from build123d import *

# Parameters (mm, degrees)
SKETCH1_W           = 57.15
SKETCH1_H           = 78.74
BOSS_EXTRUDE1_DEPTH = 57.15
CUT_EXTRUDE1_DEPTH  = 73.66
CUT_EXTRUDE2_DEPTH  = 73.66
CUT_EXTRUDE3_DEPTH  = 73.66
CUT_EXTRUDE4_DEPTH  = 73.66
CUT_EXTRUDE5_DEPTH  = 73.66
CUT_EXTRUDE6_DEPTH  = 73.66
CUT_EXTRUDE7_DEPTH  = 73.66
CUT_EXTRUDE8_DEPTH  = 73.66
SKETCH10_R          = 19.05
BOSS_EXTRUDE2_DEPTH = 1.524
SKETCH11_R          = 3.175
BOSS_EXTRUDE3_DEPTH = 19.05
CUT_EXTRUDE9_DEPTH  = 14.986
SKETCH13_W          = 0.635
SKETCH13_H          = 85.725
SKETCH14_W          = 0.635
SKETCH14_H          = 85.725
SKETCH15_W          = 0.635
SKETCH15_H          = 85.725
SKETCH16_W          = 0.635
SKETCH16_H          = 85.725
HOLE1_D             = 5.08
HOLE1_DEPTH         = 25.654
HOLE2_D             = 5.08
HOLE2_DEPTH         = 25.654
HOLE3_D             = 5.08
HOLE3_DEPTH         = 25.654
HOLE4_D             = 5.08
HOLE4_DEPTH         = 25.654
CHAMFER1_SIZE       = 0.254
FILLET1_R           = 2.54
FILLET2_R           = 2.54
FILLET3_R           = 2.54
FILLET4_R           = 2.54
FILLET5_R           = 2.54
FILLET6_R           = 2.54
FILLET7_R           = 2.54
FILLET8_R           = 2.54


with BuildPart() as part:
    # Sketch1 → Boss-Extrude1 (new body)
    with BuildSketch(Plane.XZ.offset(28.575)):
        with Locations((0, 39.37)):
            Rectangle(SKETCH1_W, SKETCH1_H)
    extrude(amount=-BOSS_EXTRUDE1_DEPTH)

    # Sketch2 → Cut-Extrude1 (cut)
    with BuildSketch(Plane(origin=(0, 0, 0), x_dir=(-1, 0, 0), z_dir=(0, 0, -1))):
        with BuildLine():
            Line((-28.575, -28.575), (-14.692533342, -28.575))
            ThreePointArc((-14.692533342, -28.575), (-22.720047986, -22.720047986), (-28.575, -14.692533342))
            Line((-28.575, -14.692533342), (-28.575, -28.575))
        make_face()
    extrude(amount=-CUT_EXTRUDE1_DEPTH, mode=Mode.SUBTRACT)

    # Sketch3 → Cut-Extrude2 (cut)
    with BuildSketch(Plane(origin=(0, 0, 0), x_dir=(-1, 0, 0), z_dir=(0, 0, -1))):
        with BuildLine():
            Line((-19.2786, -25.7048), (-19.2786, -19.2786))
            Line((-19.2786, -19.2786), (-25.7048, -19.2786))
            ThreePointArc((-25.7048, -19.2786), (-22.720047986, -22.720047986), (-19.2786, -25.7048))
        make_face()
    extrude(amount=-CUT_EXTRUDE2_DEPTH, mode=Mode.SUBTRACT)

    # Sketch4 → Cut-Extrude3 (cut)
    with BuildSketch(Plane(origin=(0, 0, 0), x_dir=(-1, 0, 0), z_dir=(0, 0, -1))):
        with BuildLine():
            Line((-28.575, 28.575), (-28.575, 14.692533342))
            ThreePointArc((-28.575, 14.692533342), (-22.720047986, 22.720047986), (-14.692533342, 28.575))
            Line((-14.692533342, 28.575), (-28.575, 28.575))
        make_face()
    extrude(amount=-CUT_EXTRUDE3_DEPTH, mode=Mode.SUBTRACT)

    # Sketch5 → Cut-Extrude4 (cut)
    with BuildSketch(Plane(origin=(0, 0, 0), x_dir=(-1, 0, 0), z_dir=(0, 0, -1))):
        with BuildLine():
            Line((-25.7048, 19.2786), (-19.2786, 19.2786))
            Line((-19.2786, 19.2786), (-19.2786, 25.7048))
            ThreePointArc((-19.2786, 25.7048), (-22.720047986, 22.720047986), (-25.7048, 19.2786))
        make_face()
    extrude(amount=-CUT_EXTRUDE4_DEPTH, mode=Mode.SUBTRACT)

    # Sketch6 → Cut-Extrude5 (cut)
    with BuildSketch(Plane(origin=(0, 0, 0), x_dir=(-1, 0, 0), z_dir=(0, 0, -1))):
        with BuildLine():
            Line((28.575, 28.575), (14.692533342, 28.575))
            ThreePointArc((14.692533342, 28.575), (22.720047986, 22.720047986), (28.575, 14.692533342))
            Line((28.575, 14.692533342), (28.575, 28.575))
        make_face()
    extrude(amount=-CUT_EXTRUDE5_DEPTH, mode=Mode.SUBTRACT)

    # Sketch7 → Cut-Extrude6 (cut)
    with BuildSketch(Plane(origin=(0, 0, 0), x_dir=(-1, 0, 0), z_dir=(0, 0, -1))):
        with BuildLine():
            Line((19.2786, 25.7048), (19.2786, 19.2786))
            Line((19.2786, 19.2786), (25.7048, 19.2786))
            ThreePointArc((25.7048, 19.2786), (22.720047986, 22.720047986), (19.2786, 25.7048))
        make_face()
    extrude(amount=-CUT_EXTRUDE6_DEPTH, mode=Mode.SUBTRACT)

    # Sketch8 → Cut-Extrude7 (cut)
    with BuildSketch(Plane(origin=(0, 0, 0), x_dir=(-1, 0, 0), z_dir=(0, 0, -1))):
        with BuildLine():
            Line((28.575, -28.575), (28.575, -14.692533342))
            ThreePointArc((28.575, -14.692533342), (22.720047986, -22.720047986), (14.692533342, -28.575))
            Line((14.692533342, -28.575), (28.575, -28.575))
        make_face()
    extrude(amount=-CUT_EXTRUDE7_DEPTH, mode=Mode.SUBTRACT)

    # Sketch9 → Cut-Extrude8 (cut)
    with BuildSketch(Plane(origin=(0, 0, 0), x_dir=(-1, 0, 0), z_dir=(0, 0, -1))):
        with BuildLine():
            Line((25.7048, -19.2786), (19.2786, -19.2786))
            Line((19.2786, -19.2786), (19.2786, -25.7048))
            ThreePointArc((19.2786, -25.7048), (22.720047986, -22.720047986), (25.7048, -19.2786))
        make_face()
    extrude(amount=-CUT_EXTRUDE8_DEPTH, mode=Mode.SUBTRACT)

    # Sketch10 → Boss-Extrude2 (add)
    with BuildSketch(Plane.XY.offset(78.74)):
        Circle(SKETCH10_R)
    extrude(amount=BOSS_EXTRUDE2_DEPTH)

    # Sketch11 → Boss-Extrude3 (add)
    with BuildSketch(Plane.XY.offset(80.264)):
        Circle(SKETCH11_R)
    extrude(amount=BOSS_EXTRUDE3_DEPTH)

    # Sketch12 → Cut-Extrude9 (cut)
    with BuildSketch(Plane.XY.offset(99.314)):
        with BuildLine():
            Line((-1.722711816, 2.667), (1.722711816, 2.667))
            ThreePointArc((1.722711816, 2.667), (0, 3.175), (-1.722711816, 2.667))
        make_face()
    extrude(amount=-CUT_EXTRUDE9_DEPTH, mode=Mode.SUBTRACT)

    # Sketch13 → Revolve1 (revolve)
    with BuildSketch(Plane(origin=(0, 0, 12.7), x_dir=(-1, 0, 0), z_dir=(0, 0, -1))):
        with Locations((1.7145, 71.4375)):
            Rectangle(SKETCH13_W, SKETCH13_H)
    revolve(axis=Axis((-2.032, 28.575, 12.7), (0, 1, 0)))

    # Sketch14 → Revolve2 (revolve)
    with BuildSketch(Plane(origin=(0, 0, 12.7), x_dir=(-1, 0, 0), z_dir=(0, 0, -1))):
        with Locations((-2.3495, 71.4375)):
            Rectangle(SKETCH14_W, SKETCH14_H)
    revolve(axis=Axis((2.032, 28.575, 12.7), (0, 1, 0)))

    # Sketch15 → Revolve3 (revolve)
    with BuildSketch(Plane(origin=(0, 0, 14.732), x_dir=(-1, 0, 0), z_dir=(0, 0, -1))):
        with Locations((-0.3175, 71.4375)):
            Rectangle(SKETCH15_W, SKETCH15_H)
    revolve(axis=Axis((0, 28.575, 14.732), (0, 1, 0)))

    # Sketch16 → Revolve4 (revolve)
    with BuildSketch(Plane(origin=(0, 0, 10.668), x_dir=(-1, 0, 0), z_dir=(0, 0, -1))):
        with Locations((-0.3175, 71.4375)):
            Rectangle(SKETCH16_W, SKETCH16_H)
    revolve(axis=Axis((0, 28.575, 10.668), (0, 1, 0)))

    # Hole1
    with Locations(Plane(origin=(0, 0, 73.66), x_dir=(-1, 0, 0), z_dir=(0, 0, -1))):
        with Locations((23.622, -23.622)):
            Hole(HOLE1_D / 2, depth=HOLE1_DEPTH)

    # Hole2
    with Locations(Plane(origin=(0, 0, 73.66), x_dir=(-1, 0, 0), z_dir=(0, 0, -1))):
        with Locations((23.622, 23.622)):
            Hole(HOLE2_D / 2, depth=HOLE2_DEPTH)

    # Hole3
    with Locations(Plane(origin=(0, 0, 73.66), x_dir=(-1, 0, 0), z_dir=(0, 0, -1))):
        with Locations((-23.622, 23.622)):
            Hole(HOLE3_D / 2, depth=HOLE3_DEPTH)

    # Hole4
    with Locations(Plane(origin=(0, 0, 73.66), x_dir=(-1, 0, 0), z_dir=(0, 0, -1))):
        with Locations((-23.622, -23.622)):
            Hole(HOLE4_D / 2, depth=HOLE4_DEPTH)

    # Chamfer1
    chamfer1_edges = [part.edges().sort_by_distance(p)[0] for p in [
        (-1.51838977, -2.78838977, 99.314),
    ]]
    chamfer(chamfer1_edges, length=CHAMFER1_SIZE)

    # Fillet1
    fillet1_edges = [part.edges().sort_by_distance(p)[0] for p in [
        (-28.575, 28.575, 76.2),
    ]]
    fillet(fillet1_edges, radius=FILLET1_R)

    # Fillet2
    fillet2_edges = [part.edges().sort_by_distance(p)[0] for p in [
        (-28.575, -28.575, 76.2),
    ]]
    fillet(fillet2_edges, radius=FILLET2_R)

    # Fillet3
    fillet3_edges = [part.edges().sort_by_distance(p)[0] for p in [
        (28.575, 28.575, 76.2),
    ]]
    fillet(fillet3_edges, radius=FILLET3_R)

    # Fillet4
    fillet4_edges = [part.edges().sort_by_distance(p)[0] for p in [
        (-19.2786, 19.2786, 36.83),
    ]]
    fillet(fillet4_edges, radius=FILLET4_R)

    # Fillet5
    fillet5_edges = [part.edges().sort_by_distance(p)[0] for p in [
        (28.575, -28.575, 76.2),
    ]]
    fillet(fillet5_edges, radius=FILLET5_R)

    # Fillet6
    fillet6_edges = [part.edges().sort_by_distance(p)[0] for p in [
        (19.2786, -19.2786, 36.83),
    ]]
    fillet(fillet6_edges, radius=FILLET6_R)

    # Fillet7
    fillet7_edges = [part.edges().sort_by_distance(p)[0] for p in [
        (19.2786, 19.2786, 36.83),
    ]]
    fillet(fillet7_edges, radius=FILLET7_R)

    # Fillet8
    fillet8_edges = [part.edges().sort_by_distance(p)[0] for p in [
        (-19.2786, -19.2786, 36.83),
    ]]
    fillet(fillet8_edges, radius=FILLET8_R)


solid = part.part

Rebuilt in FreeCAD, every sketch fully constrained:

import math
import FreeCAD as App
import Part
import Sketcher
from FreeCAD import Vector
Q = App.Units.Quantity


def edges_at(feature, points):
    """Names of the edges that pass closest to the given points."""
    edges = feature.Shape.Edges
    near = lambda p: min(range(len(edges)), key=lambda i: edges[i].distToShape(Part.Vertex(*p))[0])
    return sorted({f"Edge{near(p) + 1}" for p in points})

doc = App.newDocument("Part")
body = doc.addObject("PartDesign::Body", "Body")

# Sketch on XZ plane
sketch1 = body.newObject("Sketcher::SketchObject", "Sketch")
sketch1.AttachmentSupport = (doc.getObject("XZ_Plane"), [""])
sketch1.MapMode = "FlatFace"
sketch1.AttachmentOffset = App.Placement(Vector(0, 0, 1.125 * 25.4), App.Rotation())
sketch1.addGeometry(Part.LineSegment(Vector(-29, 79, 0), Vector(-29, 0, 0)), False)
sketch1.addGeometry(Part.LineSegment(Vector(-29, 0, 0), Vector(29, 0, 0)), False)
sketch1.addGeometry(Part.LineSegment(Vector(29, 0, 0), Vector(29, 79, 0)), False)
sketch1.addGeometry(Part.LineSegment(Vector(29, 79, 0), Vector(-29, 79, 0)), False)
sketch1.addConstraint(Sketcher.Constraint("Coincident", 0, 2, 1, 1))
sketch1.addConstraint(Sketcher.Constraint("Coincident", 1, 2, 2, 1))
sketch1.addConstraint(Sketcher.Constraint("Coincident", 2, 2, 3, 1))
sketch1.addConstraint(Sketcher.Constraint("Coincident", 3, 2, 0, 1))
sketch1.addConstraint(Sketcher.Constraint("Vertical", 0))
sketch1.addConstraint(Sketcher.Constraint("Horizontal", 1))
sketch1.addConstraint(Sketcher.Constraint("Vertical", 2))
sketch1.addConstraint(Sketcher.Constraint("Horizontal", 3))
sketch1.addConstraint(Sketcher.Constraint("Symmetric", 0, 2, 1, 2, -1, 1))
sketch1.addConstraint(Sketcher.Constraint("DistanceY", 0, 2, 0, 1, Q("3.1 in")))
sketch1.addConstraint(Sketcher.Constraint("DistanceX", 1, 1, 1, 2, Q("2.25 in")))
pad1 = body.newObject("PartDesign::Pad", "Pad")
pad1.Profile = sketch1
pad1.Length = Q("2.25 in")
pad1.Reversed = True

# Sketch on XY plane
sketch2 = body.newObject("Sketcher::SketchObject", "Sketch001")
sketch2.AttachmentSupport = (doc.getObject("XY_Plane"), [""])
sketch2.MapMode = "FlatFace"
sketch2.addGeometry(Part.LineSegment(Vector(29, -29, 0), Vector(15, -29, 0)), False)
sketch2.addGeometry(Part.ArcOfCircle(Part.Circle(Vector(0, 0, 0), Vector(0, 0, 1), 32), math.radians(-63), math.radians(-27)), False)
sketch2.addGeometry(Part.LineSegment(Vector(29, -15, 0), Vector(29, -29, 0)), False)
sketch2.addConstraint(Sketcher.Constraint("Coincident", 0, 2, 1, 1))
sketch2.addConstraint(Sketcher.Constraint("Coincident", 1, 2, 2, 1))
sketch2.addConstraint(Sketcher.Constraint("Coincident", 2, 2, 0, 1))
sketch2.addConstraint(Sketcher.Constraint("Horizontal", 0))
sketch2.addConstraint(Sketcher.Constraint("Vertical", 2))
sketch2.addConstraint(Sketcher.Constraint("Coincident", 1, 3, -1, 1))
sketch2.addConstraint(Sketcher.Constraint("Equal", 0, 2))
sketch2.addConstraint(Sketcher.Constraint("Radius", 1, Q("1.265 in")))
sketch2.addConstraint(Sketcher.Constraint("DistanceY", 0, 2, -1, 1, Q("1.125 in")))
pocket1 = body.newObject("PartDesign::Pocket", "Pocket")
pocket1.Profile = sketch2
pocket1.Length = Q("2.9 in")
pocket1.Reversed = True

# Sketch on XY plane
sketch3 = body.newObject("Sketcher::SketchObject", "Sketch002")
sketch3.AttachmentSupport = (doc.getObject("XY_Plane"), [""])
sketch3.MapMode = "FlatFace"
sketch3.addGeometry(Part.LineSegment(Vector(19, -26, 0), Vector(19, -19, 0)), False)
sketch3.addGeometry(Part.LineSegment(Vector(19, -19, 0), Vector(26, -19, 0)), False)
sketch3.addGeometry(Part.ArcOfCircle(Part.Circle(Vector(0, 0, 0), Vector(0, 0, 1), 32), math.radians(-53.13), math.radians(-36.87)), False)
sketch3.addConstraint(Sketcher.Constraint("Coincident", 0, 2, 1, 1))
sketch3.addConstraint(Sketcher.Constraint("Coincident", 1, 2, 2, 2))
sketch3.addConstraint(Sketcher.Constraint("Coincident", 2, 1, 0, 1))
sketch3.addConstraint(Sketcher.Constraint("Vertical", 0))
sketch3.addConstraint(Sketcher.Constraint("Horizontal", 1))
sketch3.addConstraint(Sketcher.Constraint("Coincident", 2, 3, -1, 1))
sketch3.addConstraint(Sketcher.Constraint("Equal", 1, 0))
sketch3.addConstraint(Sketcher.Constraint("Radius", 2, Q("1.265 in")))
sketch3.addConstraint(Sketcher.Constraint("DistanceX", 1, 1, 1, 2, Q("0.253 in")))
pocket2 = body.newObject("PartDesign::Pocket", "Pocket001")
pocket2.Profile = sketch3
pocket2.Length = Q("2.9 in")
pocket2.Reversed = True

# Sketch on XY plane
sketch4 = body.newObject("Sketcher::SketchObject", "Sketch003")
sketch4.AttachmentSupport = (doc.getObject("XY_Plane"), [""])
sketch4.MapMode = "FlatFace"
sketch4.addGeometry(Part.LineSegment(Vector(29, 29, 0), Vector(29, 15, 0)), False)
sketch4.addGeometry(Part.ArcOfCircle(Part.Circle(Vector(0, 0, 0), Vector(0, 0, 1), 32), math.radians(27), math.radians(63)), False)
sketch4.addGeometry(Part.LineSegment(Vector(15, 29, 0), Vector(29, 29, 0)), False)
sketch4.addConstraint(Sketcher.Constraint("Coincident", 0, 2, 1, 1))
sketch4.addConstraint(Sketcher.Constraint("Coincident", 1, 2, 2, 1))
sketch4.addConstraint(Sketcher.Constraint("Coincident", 2, 2, 0, 1))
sketch4.addConstraint(Sketcher.Constraint("Vertical", 0))
sketch4.addConstraint(Sketcher.Constraint("Horizontal", 2))
sketch4.addConstraint(Sketcher.Constraint("Coincident", 1, 3, -1, 1))
sketch4.addConstraint(Sketcher.Constraint("Equal", 2, 0))
sketch4.addConstraint(Sketcher.Constraint("Radius", 1, Q("1.265 in")))
sketch4.addConstraint(Sketcher.Constraint("DistanceX", -1, 1, 0, 2, Q("1.125 in")))
pocket3 = body.newObject("PartDesign::Pocket", "Pocket002")
pocket3.Profile = sketch4
pocket3.Length = Q("2.9 in")
pocket3.Reversed = True

# Sketch on XY plane
sketch5 = body.newObject("Sketcher::SketchObject", "Sketch004")
sketch5.AttachmentSupport = (doc.getObject("XY_Plane"), [""])
sketch5.MapMode = "FlatFace"
sketch5.addGeometry(Part.LineSegment(Vector(26, 19, 0), Vector(19, 19, 0)), False)
sketch5.addGeometry(Part.LineSegment(Vector(19, 19, 0), Vector(19, 26, 0)), False)
sketch5.addGeometry(Part.ArcOfCircle(Part.Circle(Vector(0, 0, 0), Vector(0, 0, 1), 32), math.radians(36.87), math.radians(53.13)), False)
sketch5.addConstraint(Sketcher.Constraint("Coincident", 0, 2, 1, 1))
sketch5.addConstraint(Sketcher.Constraint("Coincident", 1, 2, 2, 2))
sketch5.addConstraint(Sketcher.Constraint("Coincident", 2, 1, 0, 1))
sketch5.addConstraint(Sketcher.Constraint("Horizontal", 0))
sketch5.addConstraint(Sketcher.Constraint("Vertical", 1))
sketch5.addConstraint(Sketcher.Constraint("Coincident", 2, 3, -1, 1))
sketch5.addConstraint(Sketcher.Constraint("Equal", 0, 1))
sketch5.addConstraint(Sketcher.Constraint("Radius", 2, Q("1.265 in")))
sketch5.addConstraint(Sketcher.Constraint("DistanceX", 0, 2, 0, 1, Q("0.253 in")))
pocket4 = body.newObject("PartDesign::Pocket", "Pocket003")
pocket4.Profile = sketch5
pocket4.Length = Q("2.9 in")
pocket4.Reversed = True

# Sketch on XY plane
sketch6 = body.newObject("Sketcher::SketchObject", "Sketch005")
sketch6.AttachmentSupport = (doc.getObject("XY_Plane"), [""])
sketch6.MapMode = "FlatFace"
sketch6.addGeometry(Part.LineSegment(Vector(-29, 29, 0), Vector(-15, 29, 0)), False)
sketch6.addGeometry(Part.ArcOfCircle(Part.Circle(Vector(0, 0, 0), Vector(0, 0, 1), 32), math.radians(117), math.radians(153)), False)
sketch6.addGeometry(Part.LineSegment(Vector(-29, 15, 0), Vector(-29, 29, 0)), False)
sketch6.addConstraint(Sketcher.Constraint("Coincident", 0, 2, 1, 1))
sketch6.addConstraint(Sketcher.Constraint("Coincident", 1, 2, 2, 1))
sketch6.addConstraint(Sketcher.Constraint("Coincident", 2, 2, 0, 1))
sketch6.addConstraint(Sketcher.Constraint("Horizontal", 0))
sketch6.addConstraint(Sketcher.Constraint("Vertical", 2))
sketch6.addConstraint(Sketcher.Constraint("Coincident", 1, 3, -1, 1))
sketch6.addConstraint(Sketcher.Constraint("Equal", 0, 2))
sketch6.addConstraint(Sketcher.Constraint("Radius", 1, Q("1.265 in")))
sketch6.addConstraint(Sketcher.Constraint("DistanceY", -1, 1, 0, 2, Q("1.125 in")))
pocket5 = body.newObject("PartDesign::Pocket", "Pocket004")
pocket5.Profile = sketch6
pocket5.Length = Q("2.9 in")
pocket5.Reversed = True

# Sketch on XY plane
sketch7 = body.newObject("Sketcher::SketchObject", "Sketch006")
sketch7.AttachmentSupport = (doc.getObject("XY_Plane"), [""])
sketch7.MapMode = "FlatFace"
sketch7.addGeometry(Part.LineSegment(Vector(-19, 26, 0), Vector(-19, 19, 0)), False)
sketch7.addGeometry(Part.LineSegment(Vector(-19, 19, 0), Vector(-26, 19, 0)), False)
sketch7.addGeometry(Part.ArcOfCircle(Part.Circle(Vector(0, 0, 0), Vector(0, 0, 1), 32), math.radians(126.87), math.radians(143.13)), False)
sketch7.addConstraint(Sketcher.Constraint("Coincident", 0, 2, 1, 1))
sketch7.addConstraint(Sketcher.Constraint("Coincident", 1, 2, 2, 2))
sketch7.addConstraint(Sketcher.Constraint("Coincident", 2, 1, 0, 1))
sketch7.addConstraint(Sketcher.Constraint("Vertical", 0))
sketch7.addConstraint(Sketcher.Constraint("Horizontal", 1))
sketch7.addConstraint(Sketcher.Constraint("Coincident", 2, 3, -1, 1))
sketch7.addConstraint(Sketcher.Constraint("Equal", 1, 0))
sketch7.addConstraint(Sketcher.Constraint("Radius", 2, Q("1.265 in")))
sketch7.addConstraint(Sketcher.Constraint("DistanceX", 1, 2, 1, 1, Q("0.253 in")))
pocket6 = body.newObject("PartDesign::Pocket", "Pocket005")
pocket6.Profile = sketch7
pocket6.Length = Q("2.9 in")
pocket6.Reversed = True

# Sketch on XY plane
sketch8 = body.newObject("Sketcher::SketchObject", "Sketch007")
sketch8.AttachmentSupport = (doc.getObject("XY_Plane"), [""])
sketch8.MapMode = "FlatFace"
sketch8.addGeometry(Part.LineSegment(Vector(-29, -29, 0), Vector(-29, -15, 0)), False)
sketch8.addGeometry(Part.ArcOfCircle(Part.Circle(Vector(0, 0, 0), Vector(0, 0, 1), 32), math.radians(-153), math.radians(-117)), False)
sketch8.addGeometry(Part.LineSegment(Vector(-15, -29, 0), Vector(-29, -29, 0)), False)
sketch8.addConstraint(Sketcher.Constraint("Coincident", 0, 2, 1, 1))
sketch8.addConstraint(Sketcher.Constraint("Coincident", 1, 2, 2, 1))
sketch8.addConstraint(Sketcher.Constraint("Coincident", 2, 2, 0, 1))
sketch8.addConstraint(Sketcher.Constraint("Vertical", 0))
sketch8.addConstraint(Sketcher.Constraint("Horizontal", 2))
sketch8.addConstraint(Sketcher.Constraint("Coincident", 1, 3, -1, 1))
sketch8.addConstraint(Sketcher.Constraint("Equal", 2, 0))
sketch8.addConstraint(Sketcher.Constraint("Radius", 1, Q("1.265 in")))
sketch8.addConstraint(Sketcher.Constraint("DistanceX", 0, 2, -1, 1, Q("1.125 in")))
pocket7 = body.newObject("PartDesign::Pocket", "Pocket006")
pocket7.Profile = sketch8
pocket7.Length = Q("2.9 in")
pocket7.Reversed = True

# Sketch on XY plane
sketch9 = body.newObject("Sketcher::SketchObject", "Sketch008")
sketch9.AttachmentSupport = (doc.getObject("XY_Plane"), [""])
sketch9.MapMode = "FlatFace"
sketch9.addGeometry(Part.LineSegment(Vector(-26, -19, 0), Vector(-19, -19, 0)), False)
sketch9.addGeometry(Part.LineSegment(Vector(-19, -19, 0), Vector(-19, -26, 0)), False)
sketch9.addGeometry(Part.ArcOfCircle(Part.Circle(Vector(0, 0, 0), Vector(0, 0, 1), 32), math.radians(-143.13), math.radians(-126.87)), False)
sketch9.addConstraint(Sketcher.Constraint("Coincident", 0, 2, 1, 1))
sketch9.addConstraint(Sketcher.Constraint("Coincident", 1, 2, 2, 2))
sketch9.addConstraint(Sketcher.Constraint("Coincident", 2, 1, 0, 1))
sketch9.addConstraint(Sketcher.Constraint("Horizontal", 0))
sketch9.addConstraint(Sketcher.Constraint("Vertical", 1))
sketch9.addConstraint(Sketcher.Constraint("Coincident", 2, 3, -1, 1))
sketch9.addConstraint(Sketcher.Constraint("Equal", 0, 1))
sketch9.addConstraint(Sketcher.Constraint("Radius", 2, Q("1.265 in")))
sketch9.addConstraint(Sketcher.Constraint("DistanceX", 0, 1, 0, 2, Q("0.253 in")))
pocket8 = body.newObject("PartDesign::Pocket", "Pocket007")
pocket8.Profile = sketch9
pocket8.Length = Q("2.9 in")
pocket8.Reversed = True

# Sketch on XY plane
sketch10 = body.newObject("Sketcher::SketchObject", "Sketch009")
sketch10.AttachmentSupport = (doc.getObject("XY_Plane"), [""])
sketch10.MapMode = "FlatFace"
sketch10.AttachmentOffset = App.Placement(Vector(0, 0, 3.1 * 25.4), App.Rotation())
sketch10.addGeometry(Part.Circle(Vector(0, 0, 0), Vector(0, 0, 1), 19), False)
sketch10.addConstraint(Sketcher.Constraint("Coincident", 0, 3, -1, 1))
sketch10.addConstraint(Sketcher.Constraint("Diameter", 0, Q("1.5 in")))
pad2 = body.newObject("PartDesign::Pad", "Pad001")
pad2.Profile = sketch10
pad2.Length = Q("0.06 in")

# Sketch on XY plane
sketch11 = body.newObject("Sketcher::SketchObject", "Sketch010")
sketch11.AttachmentSupport = (doc.getObject("XY_Plane"), [""])
sketch11.MapMode = "FlatFace"
sketch11.AttachmentOffset = App.Placement(Vector(0, 0, 3.16 * 25.4), App.Rotation())
sketch11.addGeometry(Part.Circle(Vector(0, 0, 0), Vector(0, 0, 1), 3.2), False)
sketch11.addConstraint(Sketcher.Constraint("Coincident", 0, 3, -1, 1))
sketch11.addConstraint(Sketcher.Constraint("Diameter", 0, Q("0.25 in")))
pad3 = body.newObject("PartDesign::Pad", "Pad002")
pad3.Profile = sketch11
pad3.Length = Q("0.75 in")

# Sketch on XY plane
sketch12 = body.newObject("Sketcher::SketchObject", "Sketch011")
sketch12.AttachmentSupport = (doc.getObject("XY_Plane"), [""])
sketch12.MapMode = "FlatFace"
sketch12.AttachmentOffset = App.Placement(Vector(0, 0, 3.91 * 25.4), App.Rotation())
sketch12.addGeometry(Part.LineSegment(Vector(-1.7, 2.7, 0), Vector(1.7, 2.7, 0)), False)
sketch12.addGeometry(Part.ArcOfCircle(Part.Circle(Vector(0, 0, 0), Vector(0, 0, 1), 3.2), math.radians(57), math.radians(123)), False)
sketch12.addConstraint(Sketcher.Constraint("Coincident", 0, 1, 1, 2))
sketch12.addConstraint(Sketcher.Constraint("Coincident", 1, 1, 0, 2))
sketch12.addConstraint(Sketcher.Constraint("Horizontal", 0))
sketch12.addConstraint(Sketcher.Constraint("Coincident", 1, 3, -1, 1))
sketch12.addConstraint(Sketcher.Constraint("Radius", 1, Q("0.125 in")))
sketch12.addConstraint(Sketcher.Constraint("DistanceY", -1, 1, 0, 1, Q("0.105 in")))
pocket9 = body.newObject("PartDesign::Pocket", "Pocket008")
pocket9.Profile = sketch12
pocket9.Length = Q("0.59 in")

# Sketch on XY plane
sketch13 = body.newObject("Sketcher::SketchObject", "Sketch012")
sketch13.AttachmentSupport = (doc.getObject("XY_Plane"), [""])
sketch13.MapMode = "FlatFace"
sketch13.AttachmentOffset = App.Placement(Vector(0, 0, 0.5 * 25.4), App.Rotation())
sketch13.addGeometry(Part.LineSegment(Vector(-1.4, 114.3, 0), Vector(-1.4, 28.6, 0)), False)
sketch13.addGeometry(Part.LineSegment(Vector(-1.4, 28.6, 0), Vector(-2, 28.6, 0)), False)
sketch13.addGeometry(Part.LineSegment(Vector(-2, 28.6, 0), Vector(-2, 114.3, 0)), False)
sketch13.addGeometry(Part.LineSegment(Vector(-2, 114.3, 0), Vector(-1.4, 114.3, 0)), False)
sketch13.addGeometry(Part.LineSegment(Vector(-2, 28.6, 0), Vector(-2, 114.3, 0)), True)  # axis
sketch13.addConstraint(Sketcher.Constraint("Coincident", 0, 2, 1, 1))
sketch13.addConstraint(Sketcher.Constraint("Coincident", 1, 2, 2, 1))
sketch13.addConstraint(Sketcher.Constraint("Coincident", 2, 2, 3, 1))
sketch13.addConstraint(Sketcher.Constraint("Coincident", 3, 2, 0, 1))
sketch13.addConstraint(Sketcher.Constraint("Vertical", 0))
sketch13.addConstraint(Sketcher.Constraint("Horizontal", 1))
sketch13.addConstraint(Sketcher.Constraint("Vertical", 2))
sketch13.addConstraint(Sketcher.Constraint("Horizontal", 3))
sketch13.addConstraint(Sketcher.Constraint("Vertical", 4))
sketch13.addConstraint(Sketcher.Constraint("Coincident", 4, 1, 1, 2))
sketch13.addConstraint(Sketcher.Constraint("Horizontal", 3, 2, 4, 2))
sketch13.addConstraint(Sketcher.Constraint("DistanceY", -1, 1, 2, 2, Q("4.5 in")))
sketch13.addConstraint(Sketcher.Constraint("DistanceX", 1, 2, 1, 1, Q("0.025 in")))
sketch13.addConstraint(Sketcher.Constraint("DistanceY", 0, 2, 0, 1, Q("3.375 in")))
sketch13.addConstraint(Sketcher.Constraint("DistanceX", 1, 2, -1, 1, Q("0.08 in")))
revolution = body.newObject("PartDesign::Revolution", "Revolution")
revolution.Profile = sketch13
revolution.ReferenceAxis = (sketch13, ["Axis0"])
revolution.Angle = 360

# Sketch on XY plane
sketch14 = body.newObject("Sketcher::SketchObject", "Sketch013")
sketch14.AttachmentSupport = (doc.getObject("XY_Plane"), [""])
sketch14.MapMode = "FlatFace"
sketch14.AttachmentOffset = App.Placement(Vector(0, 0, 0.5 * 25.4), App.Rotation())
sketch14.addGeometry(Part.LineSegment(Vector(2.7, 114.3, 0), Vector(2.7, 28.6, 0)), False)
sketch14.addGeometry(Part.LineSegment(Vector(2.7, 28.6, 0), Vector(2, 28.6, 0)), False)
sketch14.addGeometry(Part.LineSegment(Vector(2, 28.6, 0), Vector(2, 114.3, 0)), False)
sketch14.addGeometry(Part.LineSegment(Vector(2, 114.3, 0), Vector(2.7, 114.3, 0)), False)
sketch14.addGeometry(Part.LineSegment(Vector(2, 28.6, 0), Vector(2, 114.3, 0)), True)  # axis
sketch14.addConstraint(Sketcher.Constraint("Coincident", 0, 2, 1, 1))
sketch14.addConstraint(Sketcher.Constraint("Coincident", 1, 2, 2, 1))
sketch14.addConstraint(Sketcher.Constraint("Coincident", 2, 2, 3, 1))
sketch14.addConstraint(Sketcher.Constraint("Coincident", 3, 2, 0, 1))
sketch14.addConstraint(Sketcher.Constraint("Vertical", 0))
sketch14.addConstraint(Sketcher.Constraint("Horizontal", 1))
sketch14.addConstraint(Sketcher.Constraint("Vertical", 2))
sketch14.addConstraint(Sketcher.Constraint("Horizontal", 3))
sketch14.addConstraint(Sketcher.Constraint("Vertical", 4))
sketch14.addConstraint(Sketcher.Constraint("Coincident", 4, 1, 1, 2))
sketch14.addConstraint(Sketcher.Constraint("Horizontal", 3, 2, 4, 2))
sketch14.addConstraint(Sketcher.Constraint("DistanceY", -1, 1, 2, 2, Q("4.5 in")))
sketch14.addConstraint(Sketcher.Constraint("DistanceX", 1, 2, 1, 1, Q("0.025 in")))
sketch14.addConstraint(Sketcher.Constraint("DistanceY", 0, 2, 0, 1, Q("3.375 in")))
sketch14.addConstraint(Sketcher.Constraint("DistanceX", -1, 1, 1, 2, Q("0.08 in")))
revolution2 = body.newObject("PartDesign::Revolution", "Revolution001")
revolution2.Profile = sketch14
revolution2.ReferenceAxis = (sketch14, ["Axis0"])
revolution2.Angle = 360

# Sketch on XY plane
sketch15 = body.newObject("Sketcher::SketchObject", "Sketch014")
sketch15.AttachmentSupport = (doc.getObject("XY_Plane"), [""])
sketch15.MapMode = "FlatFace"
sketch15.AttachmentOffset = App.Placement(Vector(0, 0, 0.58 * 25.4), App.Rotation())
sketch15.addGeometry(Part.LineSegment(Vector(0.6, 114.3, 0), Vector(0.6, 28.6, 0)), False)
sketch15.addGeometry(Part.LineSegment(Vector(0.6, 28.6, 0), Vector(0, 28.6, 0)), False)
sketch15.addGeometry(Part.LineSegment(Vector(0, 28.6, 0), Vector(0, 114.3, 0)), False)
sketch15.addGeometry(Part.LineSegment(Vector(0, 114.3, 0), Vector(0.6, 114.3, 0)), False)
sketch15.addConstraint(Sketcher.Constraint("Coincident", 0, 2, 1, 1))
sketch15.addConstraint(Sketcher.Constraint("Coincident", 1, 2, 2, 1))
sketch15.addConstraint(Sketcher.Constraint("Coincident", 2, 2, 3, 1))
sketch15.addConstraint(Sketcher.Constraint("Coincident", 3, 2, 0, 1))
sketch15.addConstraint(Sketcher.Constraint("Vertical", 0))
sketch15.addConstraint(Sketcher.Constraint("Horizontal", 1))
sketch15.addConstraint(Sketcher.Constraint("Vertical", 2))
sketch15.addConstraint(Sketcher.Constraint("Horizontal", 3))
sketch15.addConstraint(Sketcher.Constraint("PointOnObject", 1, 2, -2))
sketch15.addConstraint(Sketcher.Constraint("DistanceY", -1, 1, 2, 2, Q("4.5 in")))
sketch15.addConstraint(Sketcher.Constraint("DistanceX", 1, 2, 1, 1, Q("0.025 in")))
sketch15.addConstraint(Sketcher.Constraint("DistanceY", 0, 2, 0, 1, Q("3.375 in")))
revolution3 = body.newObject("PartDesign::Revolution", "Revolution002")
revolution3.Profile = sketch15
revolution3.ReferenceAxis = (sketch15, ["V_Axis"])
revolution3.Angle = 360

# Sketch on XY plane
sketch16 = body.newObject("Sketcher::SketchObject", "Sketch015")
sketch16.AttachmentSupport = (doc.getObject("XY_Plane"), [""])
sketch16.MapMode = "FlatFace"
sketch16.AttachmentOffset = App.Placement(Vector(0, 0, 0.42 * 25.4), App.Rotation())
sketch16.addGeometry(Part.LineSegment(Vector(0.6, 114.3, 0), Vector(0.6, 28.6, 0)), False)
sketch16.addGeometry(Part.LineSegment(Vector(0.6, 28.6, 0), Vector(0, 28.6, 0)), False)
sketch16.addGeometry(Part.LineSegment(Vector(0, 28.6, 0), Vector(0, 114.3, 0)), False)
sketch16.addGeometry(Part.LineSegment(Vector(0, 114.3, 0), Vector(0.6, 114.3, 0)), False)
sketch16.addConstraint(Sketcher.Constraint("Coincident", 0, 2, 1, 1))
sketch16.addConstraint(Sketcher.Constraint("Coincident", 1, 2, 2, 1))
sketch16.addConstraint(Sketcher.Constraint("Coincident", 2, 2, 3, 1))
sketch16.addConstraint(Sketcher.Constraint("Coincident", 3, 2, 0, 1))
sketch16.addConstraint(Sketcher.Constraint("Vertical", 0))
sketch16.addConstraint(Sketcher.Constraint("Horizontal", 1))
sketch16.addConstraint(Sketcher.Constraint("Vertical", 2))
sketch16.addConstraint(Sketcher.Constraint("Horizontal", 3))
sketch16.addConstraint(Sketcher.Constraint("PointOnObject", 1, 2, -2))
sketch16.addConstraint(Sketcher.Constraint("DistanceY", -1, 1, 2, 2, Q("4.5 in")))
sketch16.addConstraint(Sketcher.Constraint("DistanceX", 1, 2, 1, 1, Q("0.025 in")))
sketch16.addConstraint(Sketcher.Constraint("DistanceY", 0, 2, 0, 1, Q("3.375 in")))
revolution4 = body.newObject("PartDesign::Revolution", "Revolution003")
revolution4.Profile = sketch16
revolution4.ReferenceAxis = (sketch16, ["V_Axis"])
revolution4.Angle = 360

# Sketch on XY plane
sketch17 = body.newObject("Sketcher::SketchObject", "Sketch016")
sketch17.AttachmentSupport = (doc.getObject("XY_Plane"), [""])
sketch17.MapMode = "FlatFace"
sketch17.AttachmentOffset = App.Placement(Vector(0, 0, 2.9 * 25.4), App.Rotation())
sketch17.addGeometry(Part.Circle(Vector(-23.6, -23.6, 0), Vector(0, 0, 1), 2.5), False)
sketch17.addConstraint(Sketcher.Constraint("Diameter", 0, Q("0.2 in")))
sketch17.addConstraint(Sketcher.Constraint("DistanceX", 0, 3, -1, 1, Q("0.93 in")))
sketch17.addConstraint(Sketcher.Constraint("DistanceY", 0, 3, -1, 1, Q("0.93 in")))
doc.recompute()
hole = body.newObject("PartDesign::Hole", "Hole")
hole.Profile = sketch17
hole.ThreadType = "None"
hole.Diameter = Q("0.2 in")
hole.DepthType = "Dimension"
hole.Depth = Q("1.01 in")
hole.DrillPoint = "Flat"
hole.Reversed = True

# Sketch on XY plane
sketch18 = body.newObject("Sketcher::SketchObject", "Sketch017")
sketch18.AttachmentSupport = (doc.getObject("XY_Plane"), [""])
sketch18.MapMode = "FlatFace"
sketch18.AttachmentOffset = App.Placement(Vector(0, 0, 2.9 * 25.4), App.Rotation())
sketch18.addGeometry(Part.Circle(Vector(-23.6, 23.6, 0), Vector(0, 0, 1), 2.5), False)
sketch18.addConstraint(Sketcher.Constraint("Diameter", 0, Q("0.2 in")))
sketch18.addConstraint(Sketcher.Constraint("DistanceX", 0, 3, -1, 1, Q("0.93 in")))
sketch18.addConstraint(Sketcher.Constraint("DistanceY", -1, 1, 0, 3, Q("0.93 in")))
doc.recompute()
hole2 = body.newObject("PartDesign::Hole", "Hole001")
hole2.Profile = sketch18
hole2.ThreadType = "None"
hole2.Diameter = Q("0.2 in")
hole2.DepthType = "Dimension"
hole2.Depth = Q("1.01 in")
hole2.DrillPoint = "Flat"
hole2.Reversed = True

# Sketch on XY plane
sketch19 = body.newObject("Sketcher::SketchObject", "Sketch018")
sketch19.AttachmentSupport = (doc.getObject("XY_Plane"), [""])
sketch19.MapMode = "FlatFace"
sketch19.AttachmentOffset = App.Placement(Vector(0, 0, 2.9 * 25.4), App.Rotation())
sketch19.addGeometry(Part.Circle(Vector(23.6, 23.6, 0), Vector(0, 0, 1), 2.5), False)
sketch19.addConstraint(Sketcher.Constraint("Diameter", 0, Q("0.2 in")))
sketch19.addConstraint(Sketcher.Constraint("DistanceX", -1, 1, 0, 3, Q("0.93 in")))
sketch19.addConstraint(Sketcher.Constraint("DistanceY", -1, 1, 0, 3, Q("0.93 in")))
doc.recompute()
hole3 = body.newObject("PartDesign::Hole", "Hole002")
hole3.Profile = sketch19
hole3.ThreadType = "None"
hole3.Diameter = Q("0.2 in")
hole3.DepthType = "Dimension"
hole3.Depth = Q("1.01 in")
hole3.DrillPoint = "Flat"
hole3.Reversed = True

# Sketch on XY plane
sketch20 = body.newObject("Sketcher::SketchObject", "Sketch019")
sketch20.AttachmentSupport = (doc.getObject("XY_Plane"), [""])
sketch20.MapMode = "FlatFace"
sketch20.AttachmentOffset = App.Placement(Vector(0, 0, 2.9 * 25.4), App.Rotation())
sketch20.addGeometry(Part.Circle(Vector(23.6, -23.6, 0), Vector(0, 0, 1), 2.5), False)
sketch20.addConstraint(Sketcher.Constraint("Diameter", 0, Q("0.2 in")))
sketch20.addConstraint(Sketcher.Constraint("DistanceX", -1, 1, 0, 3, Q("0.93 in")))
sketch20.addConstraint(Sketcher.Constraint("DistanceY", 0, 3, -1, 1, Q("0.93 in")))
doc.recompute()
hole4 = body.newObject("PartDesign::Hole", "Hole003")
hole4.Profile = sketch20
hole4.ThreadType = "None"
hole4.Diameter = Q("0.2 in")
hole4.DepthType = "Dimension"
hole4.Depth = Q("1.01 in")
hole4.DrillPoint = "Flat"
hole4.Reversed = True
doc.recompute()

chamfer = body.newObject("PartDesign::Chamfer", "Chamfer")
chamfer.Base = (hole4, edges_at(hole4, [(-1.518, -2.788, 99.314)]))
chamfer.Size = Q("0.01 in")
doc.recompute()

fillet = body.newObject("PartDesign::Fillet", "Fillet")
fillet.Base = (chamfer, edges_at(chamfer, [(-28.575, 28.575, 76.2)]))
fillet.Radius = Q("0.1 in")
doc.recompute()

fillet2 = body.newObject("PartDesign::Fillet", "Fillet001")
fillet2.Base = (fillet, edges_at(fillet, [(-28.575, -28.575, 76.2)]))
fillet2.Radius = Q("0.1 in")
doc.recompute()

fillet3 = body.newObject("PartDesign::Fillet", "Fillet002")
fillet3.Base = (fillet2, edges_at(fillet2, [(28.575, 28.575, 76.2)]))
fillet3.Radius = Q("0.1 in")
doc.recompute()

fillet4 = body.newObject("PartDesign::Fillet", "Fillet003")
fillet4.Base = (fillet3, edges_at(fillet3, [(-19.279, 19.279, 36.83)]))
fillet4.Radius = Q("0.1 in")
doc.recompute()

fillet5 = body.newObject("PartDesign::Fillet", "Fillet004")
fillet5.Base = (fillet4, edges_at(fillet4, [(28.575, -28.575, 76.2)]))
fillet5.Radius = Q("0.1 in")
doc.recompute()

fillet6 = body.newObject("PartDesign::Fillet", "Fillet005")
fillet6.Base = (fillet5, edges_at(fillet5, [(19.279, -19.279, 36.83)]))
fillet6.Radius = Q("0.1 in")
doc.recompute()

fillet7 = body.newObject("PartDesign::Fillet", "Fillet006")
fillet7.Base = (fillet6, edges_at(fillet6, [(19.279, 19.279, 36.83)]))
fillet7.Radius = Q("0.1 in")
doc.recompute()

fillet8 = body.newObject("PartDesign::Fillet", "Fillet007")
fillet8.Base = (fillet7, edges_at(fillet7, [(-19.279, -19.279, 36.83)]))
fillet8.Radius = Q("0.1 in")

doc.recompute()
